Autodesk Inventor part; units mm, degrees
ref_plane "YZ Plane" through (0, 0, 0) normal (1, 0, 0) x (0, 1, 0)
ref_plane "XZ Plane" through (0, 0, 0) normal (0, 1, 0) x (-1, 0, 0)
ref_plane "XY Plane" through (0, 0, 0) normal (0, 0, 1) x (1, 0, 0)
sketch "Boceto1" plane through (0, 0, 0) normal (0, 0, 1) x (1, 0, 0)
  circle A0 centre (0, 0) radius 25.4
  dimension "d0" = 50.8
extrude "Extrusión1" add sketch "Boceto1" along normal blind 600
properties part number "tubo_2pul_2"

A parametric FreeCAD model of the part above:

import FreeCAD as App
import Part
import Sketcher

doc = App.newDocument("Part")
body = doc.addObject("PartDesign::Body", "Body")

# Sketch on XY plane
sketch1 = doc.addObject("Sketcher::SketchObject", "Sketch")
body.addObject(sketch1)
sketch1.AttachmentSupport = (doc.XY_Plane, [""])
sketch1.MapMode = "FlatFace"
sketch1.addGeometry(Part.Circle(App.Vector(0, 0, 0), App.Vector(0, 0, 1), 25.4), False)
sketch1.addConstraint(Sketcher.Constraint("Coincident", 0, 3, -1, 1))
sketch1.addConstraint(Sketcher.Constraint("Diameter", 0, 50.8))
pad1 = doc.addObject("PartDesign::Pad", "Pad")
body.addObject(pad1)
pad1.Profile = sketch1
pad1.Length = 600

doc.recompute()
